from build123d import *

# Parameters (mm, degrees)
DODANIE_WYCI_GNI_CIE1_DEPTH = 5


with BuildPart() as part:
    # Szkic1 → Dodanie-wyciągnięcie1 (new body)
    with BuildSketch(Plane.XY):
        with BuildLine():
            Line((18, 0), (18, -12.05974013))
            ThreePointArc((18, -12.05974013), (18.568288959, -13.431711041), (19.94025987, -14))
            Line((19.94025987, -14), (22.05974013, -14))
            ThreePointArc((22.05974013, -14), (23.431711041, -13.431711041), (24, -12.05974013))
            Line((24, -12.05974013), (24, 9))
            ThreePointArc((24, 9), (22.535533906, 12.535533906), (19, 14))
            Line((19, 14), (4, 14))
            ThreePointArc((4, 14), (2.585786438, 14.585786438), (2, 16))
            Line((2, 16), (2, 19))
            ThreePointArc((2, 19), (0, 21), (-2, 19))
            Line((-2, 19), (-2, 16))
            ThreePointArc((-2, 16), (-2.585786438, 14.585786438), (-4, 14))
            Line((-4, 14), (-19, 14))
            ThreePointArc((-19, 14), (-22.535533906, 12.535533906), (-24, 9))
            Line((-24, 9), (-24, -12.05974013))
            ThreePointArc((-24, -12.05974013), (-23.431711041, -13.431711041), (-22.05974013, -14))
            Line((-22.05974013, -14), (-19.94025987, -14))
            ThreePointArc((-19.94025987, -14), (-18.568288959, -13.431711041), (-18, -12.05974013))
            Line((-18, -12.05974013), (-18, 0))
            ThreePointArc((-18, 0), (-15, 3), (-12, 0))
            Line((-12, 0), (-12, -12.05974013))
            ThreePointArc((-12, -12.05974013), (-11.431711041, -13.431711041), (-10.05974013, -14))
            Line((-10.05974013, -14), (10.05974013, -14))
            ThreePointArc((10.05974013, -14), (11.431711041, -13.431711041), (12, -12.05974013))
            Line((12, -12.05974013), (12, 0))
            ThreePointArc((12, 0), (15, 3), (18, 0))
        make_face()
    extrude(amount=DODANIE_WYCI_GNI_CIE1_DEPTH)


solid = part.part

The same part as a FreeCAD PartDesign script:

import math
import FreeCAD as App
import Part
import Sketcher

doc = App.newDocument("Part")
body = doc.addObject("PartDesign::Body", "Body")

# Sketch on XY plane
sketch1 = doc.addObject("Sketcher::SketchObject", "Sketch")
body.addObject(sketch1)
sketch1.AttachmentSupport = (doc.XY_Plane, [""])
sketch1.MapMode = "FlatFace"
sketch1.addGeometry(Part.LineSegment(App.Vector(18, 0, 0), App.Vector(18, -12.05974, 0)), False)
sketch1.addGeometry(Part.ArcOfCircle(Part.Circle(App.Vector(19.94026, -12.05974, 0), App.Vector(0, 0, 1), 1.94026), math.radians(-180), math.radians(-90)), False)
sketch1.addGeometry(Part.LineSegment(App.Vector(19.94026, -14, 0), App.Vector(22.05974, -14, 0)), False)
sketch1.addGeometry(Part.ArcOfCircle(Part.Circle(App.Vector(22.05974, -12.05974, 0), App.Vector(0, 0, 1), 1.94026), math.radians(-90), math.radians(0)), False)
sketch1.addGeometry(Part.LineSegment(App.Vector(24, -12.05974, 0), App.Vector(24, 9, 0)), False)
sketch1.addGeometry(Part.ArcOfCircle(Part.Circle(App.Vector(19, 9, 0), App.Vector(0, 0, 1), 5), math.radians(0), math.radians(90)), False)
sketch1.addGeometry(Part.LineSegment(App.Vector(19, 14, 0), App.Vector(4, 14, 0)), False)
sketch1.addGeometry(Part.ArcOfCircle(Part.Circle(App.Vector(4, 16, 0), App.Vector(0, 0, 1), 2), math.radians(-180), math.radians(-90)), False)
sketch1.addGeometry(Part.LineSegment(App.Vector(2, 16, 0), App.Vector(2, 19, 0)), False)
sketch1.addGeometry(Part.ArcOfCircle(Part.Circle(App.Vector(0, 19, 0), App.Vector(0, 0, 1), 2), math.radians(0), math.radians(180)), False)
sketch1.addGeometry(Part.LineSegment(App.Vector(-2, 19, 0), App.Vector(-2, 16, 0)), False)
sketch1.addGeometry(Part.ArcOfCircle(Part.Circle(App.Vector(-4, 16, 0), App.Vector(0, 0, 1), 2), math.radians(-90), math.radians(0)), False)
sketch1.addGeometry(Part.LineSegment(App.Vector(-4, 14, 0), App.Vector(-19, 14, 0)), False)
sketch1.addGeometry(Part.ArcOfCircle(Part.Circle(App.Vector(-19, 9, 0), App.Vector(0, 0, 1), 5), math.radians(90), math.radians(180)), False)
sketch1.addGeometry(Part.LineSegment(App.Vector(-24, 9, 0), App.Vector(-24, -12.05974, 0)), False)
sketch1.addGeometry(Part.ArcOfCircle(Part.Circle(App.Vector(-22.05974, -12.05974, 0), App.Vector(0, 0, 1), 1.94026), math.radians(-180), math.radians(-90)), False)
sketch1.addGeometry(Part.LineSegment(App.Vector(-22.05974, -14, 0), App.Vector(-19.94026, -14, 0)), False)
sketch1.addGeometry(Part.ArcOfCircle(Part.Circle(App.Vector(-19.94026, -12.05974, 0), App.Vector(0, 0, 1), 1.94026), math.radians(-90), math.radians(0)), False)
sketch1.addGeometry(Part.LineSegment(App.Vector(-18, -12.05974, 0), App.Vector(-18, 0, 0)), False)
sketch1.addGeometry(Part.ArcOfCircle(Part.Circle(App.Vector(-15, 0, 0), App.Vector(0, 0, 1), 3), math.radians(0), math.radians(180)), False)
sketch1.addGeometry(Part.LineSegment(App.Vector(-12, 0, 0), App.Vector(-12, -12.05974, 0)), False)
sketch1.addGeometry(Part.ArcOfCircle(Part.Circle(App.Vector(-10.05974, -12.05974, 0), App.Vector(0, 0, 1), 1.94026), math.radians(-180), math.radians(-90)), False)
sketch1.addGeometry(Part.LineSegment(App.Vector(-10.05974, -14, 0), App.Vector(10.05974, -14, 0)), False)
sketch1.addGeometry(Part.ArcOfCircle(Part.Circle(App.Vector(10.05974, -12.05974, 0), App.Vector(0, 0, 1), 1.94026), math.radians(-90), math.radians(0)), False)
sketch1.addGeometry(Part.LineSegment(App.Vector(12, -12.05974, 0), App.Vector(12, 0, 0)), False)
sketch1.addGeometry(Part.ArcOfCircle(Part.Circle(App.Vector(15, 0, 0), App.Vector(0, 0, 1), 3), math.radians(0), math.radians(180)), False)
sketch1.addConstraint(Sketcher.Constraint("Tangent", 0, 2, 1, 1))
sketch1.addConstraint(Sketcher.Constraint("Tangent", 1, 2, 2, 1))
sketch1.addConstraint(Sketcher.Constraint("Tangent", 2, 2, 3, 1))
sketch1.addConstraint(Sketcher.Constraint("Tangent", 3, 2, 4, 1))
sketch1.addConstraint(Sketcher.Constraint("Tangent", 4, 2, 5, 1))
sketch1.addConstraint(Sketcher.Constraint("Tangent", 5, 2, 6, 1))
sketch1.addConstraint(Sketcher.Constraint("Tangent", 6, 2, 7, 2))
sketch1.addConstraint(Sketcher.Constraint("Tangent", 7, 1, 8, 1))
sketch1.addConstraint(Sketcher.Constraint("Tangent", 8, 2, 9, 1))
sketch1.addConstraint(Sketcher.Constraint("Tangent", 9, 2, 10, 1))
sketch1.addConstraint(Sketcher.Constraint("Tangent", 10, 2, 11, 2))
sketch1.addConstraint(Sketcher.Constraint("Tangent", 11, 1, 12, 1))
sketch1.addConstraint(Sketcher.Constraint("Tangent", 12, 2, 13, 1))
sketch1.addConstraint(Sketcher.Constraint("Tangent", 13, 2, 14, 1))
sketch1.addConstraint(Sketcher.Constraint("Tangent", 14, 2, 15, 1))
sketch1.addConstraint(Sketcher.Constraint("Tangent", 15, 2, 16, 1))
sketch1.addConstraint(Sketcher.Constraint("Tangent", 16, 2, 17, 1))
sketch1.addConstraint(Sketcher.Constraint("Tangent", 17, 2, 18, 1))
sketch1.addConstraint(Sketcher.Constraint("Tangent", 18, 2, 19, 2))
sketch1.addConstraint(Sketcher.Constraint("Tangent", 19, 1, 20, 1))
sketch1.addConstraint(Sketcher.Constraint("Tangent", 20, 2, 21, 1))
sketch1.addConstraint(Sketcher.Constraint("Tangent", 21, 2, 22, 1))
sketch1.addConstraint(Sketcher.Constraint("Tangent", 22, 2, 23, 1))
sketch1.addConstraint(Sketcher.Constraint("Tangent", 23, 2, 24, 1))
sketch1.addConstraint(Sketcher.Constraint("Tangent", 24, 2, 25, 2))
sketch1.addConstraint(Sketcher.Constraint("Tangent", 25, 1, 0, 1))
sketch1.addConstraint(Sketcher.Constraint("Vertical", 0))
sketch1.addConstraint(Sketcher.Constraint("Horizontal", 2))
sketch1.addConstraint(Sketcher.Constraint("Vertical", 4))
sketch1.addConstraint(Sketcher.Constraint("Horizontal", 6))
sketch1.addConstraint(Sketcher.Constraint("Vertical", 8))
sketch1.addConstraint(Sketcher.Constraint("Vertical", 10))
sketch1.addConstraint(Sketcher.Constraint("Horizontal", 12))
sketch1.addConstraint(Sketcher.Constraint("Vertical", 14))
sketch1.addConstraint(Sketcher.Constraint("Horizontal", 16))
sketch1.addConstraint(Sketcher.Constraint("Vertical", 18))
sketch1.addConstraint(Sketcher.Constraint("Vertical", 20))
sketch1.addConstraint(Sketcher.Constraint("Horizontal", 22))
sketch1.addConstraint(Sketcher.Constraint("Vertical", 24))
sketch1.addConstraint(Sketcher.Constraint("Equal", 1, 3))
sketch1.addConstraint(Sketcher.Constraint("Equal", 7, 9))
sketch1.addConstraint(Sketcher.Constraint("Equal", 9, 11))
sketch1.addConstraint(Sketcher.Constraint("Equal", 5, 13))
sketch1.addConstraint(Sketcher.Constraint("Equal", 3, 15))
sketch1.addConstraint(Sketcher.Constraint("Equal", 15, 17))
sketch1.addConstraint(Sketcher.Constraint("Equal", 17, 21))
sketch1.addConstraint(Sketcher.Constraint("Equal", 21, 23))
sketch1.addConstraint(Sketcher.Constraint("Equal", 19, 25))
sketch1.addConstraint(Sketcher.Constraint("Symmetric", 19, 3, 25, 3, -1, 1))
sketch1.addConstraint(Sketcher.Constraint("Symmetric", 7, 3, 11, 3, -2))
sketch1.addConstraint(Sketcher.Constraint("Symmetric", 3, 3, 15, 3, -2))
sketch1.addConstraint(Sketcher.Constraint("PointOnObject", 19, 3, -1))
sketch1.addConstraint(Sketcher.Constraint("Horizontal", 17, 3, 21, 3))
sketch1.addConstraint(Sketcher.Constraint("Radius", 5, 5.0))
sketch1.addConstraint(Sketcher.Constraint("Radius", 7, 2.0))
sketch1.addConstraint(Sketcher.Constraint("Radius", 19, 3.0))
sketch1.addConstraint(Sketcher.Constraint("DistanceX", 6, 2, 6, 1, 15.0))
sketch1.addConstraint(Sketcher.Constraint("DistanceY", 8, 1, 8, 2, 3.0))
sketch1.addConstraint(Sketcher.Constraint("DistanceY", -1, 1, 5, 3, 9.0))
sketch1.addConstraint(Sketcher.Constraint("DistanceX", 19, 3, -1, 1, 15.0))
sketch1.addConstraint(Sketcher.Constraint("DistanceY", 1, 2, -1, 1, 14.0))
sketch1.addConstraint(Sketcher.Constraint("Radius", 1, 1.94026))
pad1 = doc.addObject("PartDesign::Pad", "Pad")
body.addObject(pad1)
pad1.Profile = sketch1
pad1.Length = 5

doc.recompute()
